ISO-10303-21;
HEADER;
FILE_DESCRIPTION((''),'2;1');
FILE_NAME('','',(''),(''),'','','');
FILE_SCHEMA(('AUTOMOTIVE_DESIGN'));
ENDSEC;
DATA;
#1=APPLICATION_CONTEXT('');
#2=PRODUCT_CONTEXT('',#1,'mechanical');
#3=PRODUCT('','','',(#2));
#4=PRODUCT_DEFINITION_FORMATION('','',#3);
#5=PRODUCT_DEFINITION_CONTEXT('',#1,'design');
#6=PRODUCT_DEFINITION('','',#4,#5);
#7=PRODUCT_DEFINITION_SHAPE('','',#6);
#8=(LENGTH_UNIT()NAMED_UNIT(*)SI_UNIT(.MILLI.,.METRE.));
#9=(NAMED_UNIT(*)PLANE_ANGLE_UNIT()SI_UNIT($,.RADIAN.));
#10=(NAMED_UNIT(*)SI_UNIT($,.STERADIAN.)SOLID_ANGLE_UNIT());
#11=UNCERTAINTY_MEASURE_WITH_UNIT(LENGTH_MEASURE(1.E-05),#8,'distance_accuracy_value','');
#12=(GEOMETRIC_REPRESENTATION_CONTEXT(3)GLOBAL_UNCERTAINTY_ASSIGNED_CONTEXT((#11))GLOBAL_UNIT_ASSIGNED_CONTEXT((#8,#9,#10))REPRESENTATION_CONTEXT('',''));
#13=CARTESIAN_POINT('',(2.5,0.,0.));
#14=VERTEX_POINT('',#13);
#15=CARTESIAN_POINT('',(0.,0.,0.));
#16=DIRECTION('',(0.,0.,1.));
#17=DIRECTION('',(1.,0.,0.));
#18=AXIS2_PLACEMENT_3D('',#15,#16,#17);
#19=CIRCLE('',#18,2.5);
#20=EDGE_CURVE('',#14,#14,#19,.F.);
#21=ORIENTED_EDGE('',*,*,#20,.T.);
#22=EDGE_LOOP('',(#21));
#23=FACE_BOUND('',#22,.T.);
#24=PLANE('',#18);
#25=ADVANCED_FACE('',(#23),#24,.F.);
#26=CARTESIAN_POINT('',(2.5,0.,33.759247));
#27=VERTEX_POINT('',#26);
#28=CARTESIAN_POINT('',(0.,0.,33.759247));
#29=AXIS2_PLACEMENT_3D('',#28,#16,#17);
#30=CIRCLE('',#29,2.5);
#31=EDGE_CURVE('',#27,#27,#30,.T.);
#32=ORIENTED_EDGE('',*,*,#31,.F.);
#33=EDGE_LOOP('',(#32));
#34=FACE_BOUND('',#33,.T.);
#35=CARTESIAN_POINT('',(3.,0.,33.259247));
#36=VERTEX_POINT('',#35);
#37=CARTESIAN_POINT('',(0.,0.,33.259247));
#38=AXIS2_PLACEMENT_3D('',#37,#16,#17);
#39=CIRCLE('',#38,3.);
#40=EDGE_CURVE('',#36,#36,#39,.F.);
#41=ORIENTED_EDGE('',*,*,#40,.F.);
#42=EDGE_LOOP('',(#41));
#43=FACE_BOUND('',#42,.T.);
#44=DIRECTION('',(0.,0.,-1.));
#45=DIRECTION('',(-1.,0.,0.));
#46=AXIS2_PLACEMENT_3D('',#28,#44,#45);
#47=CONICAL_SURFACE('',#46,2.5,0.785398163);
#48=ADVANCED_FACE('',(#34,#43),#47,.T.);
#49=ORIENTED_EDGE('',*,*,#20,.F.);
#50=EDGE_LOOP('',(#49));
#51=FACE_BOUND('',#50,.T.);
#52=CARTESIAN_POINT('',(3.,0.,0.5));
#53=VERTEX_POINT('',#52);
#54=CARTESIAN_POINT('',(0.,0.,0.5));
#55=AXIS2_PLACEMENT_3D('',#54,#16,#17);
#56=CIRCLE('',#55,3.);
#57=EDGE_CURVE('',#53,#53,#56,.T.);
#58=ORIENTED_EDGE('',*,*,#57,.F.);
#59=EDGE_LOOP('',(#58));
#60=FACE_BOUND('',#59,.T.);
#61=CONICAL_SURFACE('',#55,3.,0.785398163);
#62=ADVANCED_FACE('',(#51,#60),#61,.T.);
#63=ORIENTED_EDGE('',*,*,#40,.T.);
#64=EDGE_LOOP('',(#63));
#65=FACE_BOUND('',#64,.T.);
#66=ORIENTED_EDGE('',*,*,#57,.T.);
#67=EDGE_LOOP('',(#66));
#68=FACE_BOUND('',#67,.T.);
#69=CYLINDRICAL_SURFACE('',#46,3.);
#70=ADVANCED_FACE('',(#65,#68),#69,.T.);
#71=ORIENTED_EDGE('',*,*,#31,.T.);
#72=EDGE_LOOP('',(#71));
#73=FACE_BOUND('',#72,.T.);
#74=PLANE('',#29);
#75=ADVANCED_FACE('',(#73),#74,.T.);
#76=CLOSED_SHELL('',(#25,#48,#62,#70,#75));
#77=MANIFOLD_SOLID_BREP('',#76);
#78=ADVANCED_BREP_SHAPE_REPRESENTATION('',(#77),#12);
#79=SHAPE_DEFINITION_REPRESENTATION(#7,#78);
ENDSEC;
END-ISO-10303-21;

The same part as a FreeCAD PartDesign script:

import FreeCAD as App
import Part
import Sketcher

V = App.Vector
Q = App.Units.Quantity


def edges_at(feature, points):
    """Names of the edges that pass closest to the given points."""
    edges = feature.Shape.Edges
    near = lambda p: min(range(len(edges)), key=lambda i: edges[i].distToShape(Part.Vertex(*p))[0])
    return sorted({f"Edge{near(p) + 1}" for p in points})

doc = App.newDocument("Part")
body = doc.addObject("PartDesign::Body", "Body")

sketch1 = body.newObject("Sketcher::SketchObject", "Sketch")
sketch1.AttachmentSupport = (doc.getObject("XY_Plane"), [""])
sketch1.MapMode = "FlatFace"
sketch1.addGeometry(Part.Circle(V(0, 0, 0), V(0, 0, 1), 3), False)
sketch1.addConstraint([
    Sketcher.Constraint("Coincident", 0, 3, -1, 1),
    Sketcher.Constraint("Diameter", 0, Q("6 mm")),
])
pad1 = body.newObject("PartDesign::Pad", "Pad")
pad1.Profile = sketch1
pad1.Length = 33.759247
doc.recompute()

chamfer = body.newObject("PartDesign::Chamfer", "Chamfer")
chamfer.Base = (pad1, edges_at(pad1, [(-3, 0, 0), (-3, 0, 33.759)]))
chamfer.Size = 0.5

doc.recompute()
